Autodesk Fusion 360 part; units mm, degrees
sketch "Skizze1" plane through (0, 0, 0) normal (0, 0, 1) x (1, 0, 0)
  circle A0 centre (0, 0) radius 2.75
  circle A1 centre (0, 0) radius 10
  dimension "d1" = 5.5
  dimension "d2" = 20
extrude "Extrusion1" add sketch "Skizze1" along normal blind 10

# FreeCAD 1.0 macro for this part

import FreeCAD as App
import Part
import Sketcher
Q = App.Units.Quantity

doc = App.newDocument("Part")
body = doc.addObject("PartDesign::Body", "Body")

# Sketch on XY plane
sketch1 = body.newObject("Sketcher::SketchObject", "Sketch")
sketch1.AttachmentSupport = (doc.getObject("XY_Plane"), [""])
sketch1.MapMode = "FlatFace"
sketch1.addGeometry([
    Part.Circle(App.Vector(0, 0, 0), App.Vector(0, 0, 1), 10),
    Part.Circle(App.Vector(0, 0, 0), App.Vector(0, 0, 1), 2.8),
], False)
sketch1.addConstraint([
    Sketcher.Constraint("Coincident", 0, 3, -1, 1),
    Sketcher.Constraint("Coincident", 1, 3, -1, 1),
    Sketcher.Constraint("Diameter", 0, Q("20 mm")),
    Sketcher.Constraint("Diameter", 1, Q("5.5 mm")),
])
pad1 = body.newObject("PartDesign::Pad", "Pad")
pad1.Profile = sketch1
pad1.Length = 10

doc.recompute()
